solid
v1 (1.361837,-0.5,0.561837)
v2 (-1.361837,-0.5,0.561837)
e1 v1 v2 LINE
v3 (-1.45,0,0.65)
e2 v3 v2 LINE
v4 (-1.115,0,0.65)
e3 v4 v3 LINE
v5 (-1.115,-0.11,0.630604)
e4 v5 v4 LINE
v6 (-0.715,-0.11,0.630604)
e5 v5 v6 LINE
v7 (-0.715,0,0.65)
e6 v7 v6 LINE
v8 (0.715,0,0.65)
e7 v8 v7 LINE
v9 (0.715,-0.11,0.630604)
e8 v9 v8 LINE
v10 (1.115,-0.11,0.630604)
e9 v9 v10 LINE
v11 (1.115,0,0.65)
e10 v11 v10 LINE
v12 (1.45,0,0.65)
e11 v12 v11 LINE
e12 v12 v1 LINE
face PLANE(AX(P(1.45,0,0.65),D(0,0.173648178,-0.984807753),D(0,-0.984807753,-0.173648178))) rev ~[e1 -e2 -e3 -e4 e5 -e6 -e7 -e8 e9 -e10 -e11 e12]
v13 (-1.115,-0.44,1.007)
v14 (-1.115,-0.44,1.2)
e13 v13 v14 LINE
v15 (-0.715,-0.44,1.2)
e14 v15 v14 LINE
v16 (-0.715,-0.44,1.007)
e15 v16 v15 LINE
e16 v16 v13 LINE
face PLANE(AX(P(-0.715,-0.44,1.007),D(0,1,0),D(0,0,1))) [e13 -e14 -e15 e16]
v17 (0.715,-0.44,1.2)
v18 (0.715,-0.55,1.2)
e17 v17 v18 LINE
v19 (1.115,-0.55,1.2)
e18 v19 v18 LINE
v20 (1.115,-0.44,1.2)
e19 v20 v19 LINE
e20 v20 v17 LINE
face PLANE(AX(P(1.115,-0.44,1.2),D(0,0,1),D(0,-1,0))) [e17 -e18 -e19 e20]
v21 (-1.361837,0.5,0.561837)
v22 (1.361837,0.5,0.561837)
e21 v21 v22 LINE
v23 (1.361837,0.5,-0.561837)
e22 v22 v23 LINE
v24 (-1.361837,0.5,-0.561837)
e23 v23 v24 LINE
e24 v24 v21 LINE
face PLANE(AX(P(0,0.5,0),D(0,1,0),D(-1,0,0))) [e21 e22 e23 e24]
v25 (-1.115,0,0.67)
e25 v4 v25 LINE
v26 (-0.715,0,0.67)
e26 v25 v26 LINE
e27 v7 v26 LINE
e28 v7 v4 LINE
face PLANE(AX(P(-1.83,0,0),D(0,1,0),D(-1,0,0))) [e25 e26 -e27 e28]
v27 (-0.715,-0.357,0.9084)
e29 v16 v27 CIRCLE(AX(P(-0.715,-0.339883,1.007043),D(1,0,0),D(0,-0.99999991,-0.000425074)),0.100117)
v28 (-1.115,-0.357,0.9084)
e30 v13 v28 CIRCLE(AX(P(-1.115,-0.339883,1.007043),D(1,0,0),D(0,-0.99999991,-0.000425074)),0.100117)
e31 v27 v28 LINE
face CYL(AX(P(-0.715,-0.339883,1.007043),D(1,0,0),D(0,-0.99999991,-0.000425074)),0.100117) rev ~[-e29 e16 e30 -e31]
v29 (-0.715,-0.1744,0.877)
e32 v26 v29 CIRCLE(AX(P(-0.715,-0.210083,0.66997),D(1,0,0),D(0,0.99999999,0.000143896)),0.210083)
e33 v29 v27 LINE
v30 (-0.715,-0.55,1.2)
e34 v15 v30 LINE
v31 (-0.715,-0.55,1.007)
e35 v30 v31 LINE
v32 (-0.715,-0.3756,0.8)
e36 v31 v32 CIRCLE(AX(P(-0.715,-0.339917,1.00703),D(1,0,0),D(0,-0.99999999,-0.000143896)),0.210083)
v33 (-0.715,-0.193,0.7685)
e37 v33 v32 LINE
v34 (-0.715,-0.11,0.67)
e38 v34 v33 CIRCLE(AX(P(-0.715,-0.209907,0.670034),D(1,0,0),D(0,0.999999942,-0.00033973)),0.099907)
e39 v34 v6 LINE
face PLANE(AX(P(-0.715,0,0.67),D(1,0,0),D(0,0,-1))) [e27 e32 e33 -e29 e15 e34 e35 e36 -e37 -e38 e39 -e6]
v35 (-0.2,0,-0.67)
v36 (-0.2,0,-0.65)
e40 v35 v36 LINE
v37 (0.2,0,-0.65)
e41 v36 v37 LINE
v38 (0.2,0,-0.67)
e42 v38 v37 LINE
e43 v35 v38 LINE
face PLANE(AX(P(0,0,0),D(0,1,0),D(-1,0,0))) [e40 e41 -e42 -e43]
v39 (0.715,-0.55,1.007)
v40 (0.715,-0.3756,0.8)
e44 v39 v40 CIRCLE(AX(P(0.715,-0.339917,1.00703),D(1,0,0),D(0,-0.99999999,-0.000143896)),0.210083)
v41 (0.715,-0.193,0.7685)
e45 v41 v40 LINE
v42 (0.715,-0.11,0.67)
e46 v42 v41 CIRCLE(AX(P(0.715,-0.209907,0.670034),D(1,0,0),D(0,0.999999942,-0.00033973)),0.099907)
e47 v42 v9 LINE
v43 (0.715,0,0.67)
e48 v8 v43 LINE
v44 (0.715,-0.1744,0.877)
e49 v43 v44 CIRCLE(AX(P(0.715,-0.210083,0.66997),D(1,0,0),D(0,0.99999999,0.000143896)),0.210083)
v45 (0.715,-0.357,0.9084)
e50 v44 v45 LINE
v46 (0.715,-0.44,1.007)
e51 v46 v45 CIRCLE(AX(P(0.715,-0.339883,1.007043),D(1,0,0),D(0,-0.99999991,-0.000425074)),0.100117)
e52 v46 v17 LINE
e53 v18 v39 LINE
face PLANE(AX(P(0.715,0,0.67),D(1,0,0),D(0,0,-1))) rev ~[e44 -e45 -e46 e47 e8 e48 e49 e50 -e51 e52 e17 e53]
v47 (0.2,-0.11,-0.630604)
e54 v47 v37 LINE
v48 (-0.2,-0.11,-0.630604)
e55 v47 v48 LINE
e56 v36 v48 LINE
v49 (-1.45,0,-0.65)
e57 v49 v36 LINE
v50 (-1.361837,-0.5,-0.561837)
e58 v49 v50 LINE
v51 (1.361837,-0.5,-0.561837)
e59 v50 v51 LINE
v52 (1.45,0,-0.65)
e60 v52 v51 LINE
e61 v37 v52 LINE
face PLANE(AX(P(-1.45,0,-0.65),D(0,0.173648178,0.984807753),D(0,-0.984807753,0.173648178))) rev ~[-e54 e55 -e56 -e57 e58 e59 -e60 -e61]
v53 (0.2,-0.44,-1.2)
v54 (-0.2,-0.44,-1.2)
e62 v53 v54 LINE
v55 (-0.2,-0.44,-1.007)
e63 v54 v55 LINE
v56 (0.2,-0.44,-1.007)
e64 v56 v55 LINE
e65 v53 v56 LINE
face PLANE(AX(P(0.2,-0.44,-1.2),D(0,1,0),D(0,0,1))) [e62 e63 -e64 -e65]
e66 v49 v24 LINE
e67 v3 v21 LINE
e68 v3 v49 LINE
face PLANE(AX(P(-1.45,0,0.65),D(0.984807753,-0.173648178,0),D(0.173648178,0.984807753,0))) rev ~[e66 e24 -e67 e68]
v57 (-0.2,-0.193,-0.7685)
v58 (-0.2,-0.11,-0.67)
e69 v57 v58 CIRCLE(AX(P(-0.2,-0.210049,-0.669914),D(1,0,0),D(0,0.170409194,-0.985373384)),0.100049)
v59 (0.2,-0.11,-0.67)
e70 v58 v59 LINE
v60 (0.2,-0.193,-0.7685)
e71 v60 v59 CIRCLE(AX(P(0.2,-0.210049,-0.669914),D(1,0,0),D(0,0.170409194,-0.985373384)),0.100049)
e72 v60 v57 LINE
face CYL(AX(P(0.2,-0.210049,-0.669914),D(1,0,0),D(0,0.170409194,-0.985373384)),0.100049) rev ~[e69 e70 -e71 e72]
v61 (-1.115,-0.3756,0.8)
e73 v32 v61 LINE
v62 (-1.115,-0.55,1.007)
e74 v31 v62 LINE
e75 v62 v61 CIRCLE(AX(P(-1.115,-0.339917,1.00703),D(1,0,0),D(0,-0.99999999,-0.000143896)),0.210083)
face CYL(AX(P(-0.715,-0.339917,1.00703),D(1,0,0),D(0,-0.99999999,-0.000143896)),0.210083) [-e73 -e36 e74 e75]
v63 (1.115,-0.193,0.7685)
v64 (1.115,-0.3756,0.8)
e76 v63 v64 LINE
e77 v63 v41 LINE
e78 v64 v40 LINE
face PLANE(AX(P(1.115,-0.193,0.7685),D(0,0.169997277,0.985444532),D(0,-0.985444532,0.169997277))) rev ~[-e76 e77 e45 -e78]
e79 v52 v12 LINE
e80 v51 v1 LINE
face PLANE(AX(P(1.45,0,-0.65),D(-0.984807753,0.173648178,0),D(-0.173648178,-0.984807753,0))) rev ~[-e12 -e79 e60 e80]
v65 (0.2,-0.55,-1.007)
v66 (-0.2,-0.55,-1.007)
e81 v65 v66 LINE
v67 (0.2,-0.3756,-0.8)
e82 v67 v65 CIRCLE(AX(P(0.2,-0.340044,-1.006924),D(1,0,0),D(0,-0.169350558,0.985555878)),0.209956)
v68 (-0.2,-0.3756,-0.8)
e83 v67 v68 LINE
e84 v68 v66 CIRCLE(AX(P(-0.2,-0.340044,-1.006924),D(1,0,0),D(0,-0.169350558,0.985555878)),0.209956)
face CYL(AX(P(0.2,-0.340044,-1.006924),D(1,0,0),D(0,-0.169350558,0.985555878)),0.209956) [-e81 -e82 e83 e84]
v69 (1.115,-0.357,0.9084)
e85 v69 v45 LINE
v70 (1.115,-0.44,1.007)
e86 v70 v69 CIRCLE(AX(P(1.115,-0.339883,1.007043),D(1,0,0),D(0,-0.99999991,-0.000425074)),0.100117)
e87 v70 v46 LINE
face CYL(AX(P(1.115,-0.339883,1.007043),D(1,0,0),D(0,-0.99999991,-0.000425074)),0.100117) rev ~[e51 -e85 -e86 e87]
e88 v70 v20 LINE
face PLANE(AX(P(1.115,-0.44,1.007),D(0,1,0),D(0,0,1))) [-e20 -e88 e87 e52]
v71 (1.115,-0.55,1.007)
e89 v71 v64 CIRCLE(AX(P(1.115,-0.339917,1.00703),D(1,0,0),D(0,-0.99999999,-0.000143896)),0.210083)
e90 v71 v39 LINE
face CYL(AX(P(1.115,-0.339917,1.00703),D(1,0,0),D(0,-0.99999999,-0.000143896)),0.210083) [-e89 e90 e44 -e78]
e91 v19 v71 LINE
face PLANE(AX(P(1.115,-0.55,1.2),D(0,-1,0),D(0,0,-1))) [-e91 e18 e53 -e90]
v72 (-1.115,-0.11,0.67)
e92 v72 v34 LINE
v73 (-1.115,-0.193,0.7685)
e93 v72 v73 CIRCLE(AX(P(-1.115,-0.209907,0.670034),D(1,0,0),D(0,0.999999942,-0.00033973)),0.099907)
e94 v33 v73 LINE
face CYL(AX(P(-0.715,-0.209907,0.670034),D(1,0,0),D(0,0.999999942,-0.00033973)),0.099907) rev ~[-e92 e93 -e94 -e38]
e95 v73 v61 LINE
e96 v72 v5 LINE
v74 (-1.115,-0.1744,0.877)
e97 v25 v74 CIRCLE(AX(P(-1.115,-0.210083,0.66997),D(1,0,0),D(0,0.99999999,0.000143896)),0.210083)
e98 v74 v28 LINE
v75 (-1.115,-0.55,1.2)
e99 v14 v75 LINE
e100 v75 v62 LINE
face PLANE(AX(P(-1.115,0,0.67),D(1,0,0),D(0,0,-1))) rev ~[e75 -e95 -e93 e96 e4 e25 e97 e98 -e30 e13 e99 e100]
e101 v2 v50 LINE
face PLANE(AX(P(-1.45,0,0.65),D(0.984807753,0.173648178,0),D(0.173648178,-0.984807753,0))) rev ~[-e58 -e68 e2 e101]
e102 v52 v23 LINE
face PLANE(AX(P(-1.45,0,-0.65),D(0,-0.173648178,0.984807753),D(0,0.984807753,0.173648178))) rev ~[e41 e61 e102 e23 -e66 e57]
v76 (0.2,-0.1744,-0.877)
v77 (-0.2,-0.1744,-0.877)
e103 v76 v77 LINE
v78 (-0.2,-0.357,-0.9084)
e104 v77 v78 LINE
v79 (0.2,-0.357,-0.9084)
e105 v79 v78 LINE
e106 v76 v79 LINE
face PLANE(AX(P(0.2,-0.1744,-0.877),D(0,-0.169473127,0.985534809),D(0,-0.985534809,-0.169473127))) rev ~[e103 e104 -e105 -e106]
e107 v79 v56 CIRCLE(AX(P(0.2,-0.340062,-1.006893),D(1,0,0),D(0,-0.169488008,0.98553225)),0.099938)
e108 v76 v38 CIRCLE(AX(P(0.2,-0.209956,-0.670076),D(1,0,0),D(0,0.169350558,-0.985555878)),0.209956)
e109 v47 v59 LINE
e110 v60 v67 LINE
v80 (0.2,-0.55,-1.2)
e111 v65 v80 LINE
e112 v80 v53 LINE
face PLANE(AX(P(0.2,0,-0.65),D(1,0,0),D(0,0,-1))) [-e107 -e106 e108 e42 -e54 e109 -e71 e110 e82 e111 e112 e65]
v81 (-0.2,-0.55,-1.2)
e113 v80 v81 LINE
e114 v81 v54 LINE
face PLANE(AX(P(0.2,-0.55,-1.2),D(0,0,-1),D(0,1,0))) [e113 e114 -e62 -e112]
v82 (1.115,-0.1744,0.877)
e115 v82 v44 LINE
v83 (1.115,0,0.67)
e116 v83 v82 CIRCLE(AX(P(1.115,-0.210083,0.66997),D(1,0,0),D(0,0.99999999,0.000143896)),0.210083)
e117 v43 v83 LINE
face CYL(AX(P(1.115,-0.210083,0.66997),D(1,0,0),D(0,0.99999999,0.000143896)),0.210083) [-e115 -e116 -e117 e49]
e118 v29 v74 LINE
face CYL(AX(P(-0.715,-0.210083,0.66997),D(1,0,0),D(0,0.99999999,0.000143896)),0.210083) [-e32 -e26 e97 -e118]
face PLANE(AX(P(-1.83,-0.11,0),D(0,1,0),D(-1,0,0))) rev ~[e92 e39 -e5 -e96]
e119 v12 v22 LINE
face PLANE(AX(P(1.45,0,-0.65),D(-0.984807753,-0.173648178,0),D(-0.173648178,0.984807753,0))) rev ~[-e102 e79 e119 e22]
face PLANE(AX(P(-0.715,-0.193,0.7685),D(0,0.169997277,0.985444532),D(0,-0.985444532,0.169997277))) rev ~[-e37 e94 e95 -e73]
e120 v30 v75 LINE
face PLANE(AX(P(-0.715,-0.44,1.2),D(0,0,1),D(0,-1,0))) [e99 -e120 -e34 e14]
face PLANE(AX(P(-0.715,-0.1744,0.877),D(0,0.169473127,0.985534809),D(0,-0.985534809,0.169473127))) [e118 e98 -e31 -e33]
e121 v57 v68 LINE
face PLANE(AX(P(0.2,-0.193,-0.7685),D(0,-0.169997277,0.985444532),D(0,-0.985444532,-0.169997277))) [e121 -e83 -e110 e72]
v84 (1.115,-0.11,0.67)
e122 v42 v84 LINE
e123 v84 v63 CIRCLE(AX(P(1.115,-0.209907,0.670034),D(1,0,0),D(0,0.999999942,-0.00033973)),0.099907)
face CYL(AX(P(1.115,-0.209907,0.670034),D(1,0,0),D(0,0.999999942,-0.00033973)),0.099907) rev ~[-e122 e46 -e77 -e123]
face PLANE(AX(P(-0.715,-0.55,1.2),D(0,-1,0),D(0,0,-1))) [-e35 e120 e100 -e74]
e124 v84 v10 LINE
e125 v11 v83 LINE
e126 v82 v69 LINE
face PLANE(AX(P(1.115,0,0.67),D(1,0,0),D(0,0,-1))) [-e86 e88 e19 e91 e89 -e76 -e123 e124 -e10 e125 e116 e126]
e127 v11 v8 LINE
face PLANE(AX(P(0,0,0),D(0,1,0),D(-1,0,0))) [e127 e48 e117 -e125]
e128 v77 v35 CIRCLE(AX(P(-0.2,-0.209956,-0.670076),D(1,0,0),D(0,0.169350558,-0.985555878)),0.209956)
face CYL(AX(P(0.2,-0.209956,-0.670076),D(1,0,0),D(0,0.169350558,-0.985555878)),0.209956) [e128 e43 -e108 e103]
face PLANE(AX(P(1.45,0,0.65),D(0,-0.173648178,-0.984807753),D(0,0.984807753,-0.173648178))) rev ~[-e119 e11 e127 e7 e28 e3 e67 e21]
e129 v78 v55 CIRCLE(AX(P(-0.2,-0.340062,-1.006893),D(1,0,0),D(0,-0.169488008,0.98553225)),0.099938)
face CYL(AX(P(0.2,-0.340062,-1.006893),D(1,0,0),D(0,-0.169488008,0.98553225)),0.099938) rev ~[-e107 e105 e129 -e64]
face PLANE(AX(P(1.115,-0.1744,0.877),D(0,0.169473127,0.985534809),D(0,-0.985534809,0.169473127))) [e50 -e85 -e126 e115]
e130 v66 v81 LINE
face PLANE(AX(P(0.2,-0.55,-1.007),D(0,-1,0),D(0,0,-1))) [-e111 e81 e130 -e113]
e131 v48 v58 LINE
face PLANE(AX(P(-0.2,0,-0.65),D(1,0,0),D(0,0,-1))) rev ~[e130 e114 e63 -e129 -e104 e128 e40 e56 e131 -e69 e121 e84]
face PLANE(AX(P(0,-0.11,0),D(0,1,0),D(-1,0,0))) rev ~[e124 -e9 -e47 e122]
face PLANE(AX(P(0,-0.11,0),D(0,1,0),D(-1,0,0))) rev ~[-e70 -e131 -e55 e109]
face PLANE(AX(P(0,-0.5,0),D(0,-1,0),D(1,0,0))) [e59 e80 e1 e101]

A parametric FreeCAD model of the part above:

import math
import FreeCAD as App
import Part
import Sketcher

V = App.Vector


def add_polygon(sketch, points):
    """Adds a closed chain of lines whose ends are joined by coincident constraints."""
    first, n = sketch.GeometryCount, len(points)
    for a, b in zip(points, points[1:] + points[:1]):
        sketch.addGeometry(Part.LineSegment(App.Vector(*a, 0), App.Vector(*b, 0)), False)
    for i in range(n):
        sketch.addConstraint(Sketcher.Constraint("Coincident", first + i, 2, first + (i + 1) % n, 1))

doc = App.newDocument("Part")
params = doc.addObject("Spreadsheet::Sheet", "Params")
for row, (alias, value) in enumerate([
    ("sketch1_width", "2.9 mm"),
    ("sketch1_height", "1.3 mm"),
    ("pad1_length", "0.5 mm"),
    ("pad1_taper", "-10 deg"),
    ("sketch2_width", "2.9 mm"),
    ("sketch2_height", "1.3 mm"),
    ("pad2_length", "0.5 mm"),
    ("pad2_taper", "-10 deg"),
    ("sketch3_width", "0.4 mm"),
    ("sketch3_height", "0.67 mm"),
    ("pad3_length", "0.11 mm"),
    ("sketch4_radius", "0.1 mm"),
    ("sketch4_radius2", "0.21 mm"),
    ("pad4_length", "0.4 mm"),
    ("sketch5_width", "0.4 mm"),
    ("sketch5_height", "0.67 mm"),
    ("pad5_length", "0.11 mm"),
    ("sketch6_radius", "0.1 mm"),
    ("sketch6_radius2", "0.21 mm"),
    ("pad6_length", "0.4 mm"),
    ("linearpattern_pitch", "1.83 mm"),
], start=1):
    params.set(f"A{row}", alias)
    params.set(f"B{row}", "=" + value)
    params.setAlias(f"B{row}", alias)

body = doc.addObject("PartDesign::Body", "Body")

# Sketch on XZ plane
sketch1 = body.newObject("Sketcher::SketchObject", "Sketch")
sketch1.AttachmentSupport = (doc.getObject("XZ_Plane"), [""])
sketch1.MapMode = "FlatFace"
add_polygon(sketch1, [(-1.45, 0.65), (1.45, 0.65), (1.45, -0.65), (-1.45, -0.65)])  # lines 0-3
sketch1.addConstraint([
    Sketcher.Constraint("Horizontal", 0),
    Sketcher.Constraint("Vertical", 1),
    Sketcher.Constraint("Horizontal", 2),
    Sketcher.Constraint("Vertical", 3),
    Sketcher.Constraint("Symmetric", 0, 2, 2, 2, -1, 1),
    Sketcher.Constraint("DistanceX", 0, 1, 0, 2, 2.9),
    Sketcher.Constraint("DistanceY", 1, 2, 1, 1, 1.3),
])
sketch1.setExpression("Constraints[9]", "Params.sketch1_width")
sketch1.setExpression("Constraints[10]", "Params.sketch1_height")
pad1 = body.newObject("PartDesign::Pad", "Pad")
pad1.Profile = sketch1
pad1.setExpression("Length", "Params.pad1_length")
pad1.Reversed = True
pad1.setExpression("TaperAngle", "Params.pad1_taper")

# Sketch on XZ plane
sketch2 = body.newObject("Sketcher::SketchObject", "Sketch001")
sketch2.AttachmentSupport = (doc.getObject("XZ_Plane"), [""])
sketch2.MapMode = "FlatFace"
add_polygon(sketch2, [(1.45, -0.65), (1.45, 0.65), (-1.45, 0.65), (-1.45, -0.65)])  # lines 0-3
sketch2.addConstraint([
    Sketcher.Constraint("Vertical", 0),
    Sketcher.Constraint("Horizontal", 1),
    Sketcher.Constraint("Vertical", 2),
    Sketcher.Constraint("Horizontal", 3),
    Sketcher.Constraint("Symmetric", 0, 2, 2, 2, -1, 1),
    Sketcher.Constraint("DistanceX", 1, 2, 1, 1, 2.9),
    Sketcher.Constraint("DistanceY", 0, 1, 0, 2, 1.3),
])
sketch2.setExpression("Constraints[9]", "Params.sketch2_width")
sketch2.setExpression("Constraints[10]", "Params.sketch2_height")
pad2 = body.newObject("PartDesign::Pad", "Pad001")
pad2.Profile = sketch2
pad2.setExpression("Length", "Params.pad2_length")
pad2.setExpression("TaperAngle", "Params.pad2_taper")

# Sketch on XZ plane
sketch3 = body.newObject("Sketcher::SketchObject", "Sketch002")
sketch3.AttachmentSupport = (doc.getObject("XZ_Plane"), [""])
sketch3.MapMode = "FlatFace"
add_polygon(sketch3, [(1.115, 0.67), (1.115, 0), (0.715, 0), (0.715, 0.67)])  # lines 0-3
sketch3.addConstraint([
    Sketcher.Constraint("Vertical", 0),
    Sketcher.Constraint("Horizontal", 1),
    Sketcher.Constraint("Vertical", 2),
    Sketcher.Constraint("Horizontal", 3),
    Sketcher.Constraint("PointOnObject", 0, 2, -1),
    Sketcher.Constraint("DistanceX", 1, 2, 1, 1, 0.4),
    Sketcher.Constraint("DistanceY", 0, 2, 0, 1, 0.67),
    Sketcher.Constraint("DistanceX", -1, 1, 0, 2, 1.115),
])
sketch3.setExpression("Constraints[9]", "Params.sketch3_width")
sketch3.setExpression("Constraints[10]", "Params.sketch3_height")
pad3 = body.newObject("PartDesign::Pad", "Pad002")
pad3.Profile = sketch3
pad3.setExpression("Length", "Params.pad3_length")

# Sketch on YZ plane
sketch4 = body.newObject("Sketcher::SketchObject", "Sketch003")
sketch4.AttachmentSupport = (doc.getObject("YZ_Plane"), [""])
sketch4.MapMode = "FlatFace"
sketch4.AttachmentOffset = App.Placement(V(0, 0, 1.115), App.Rotation())
sketch4.addGeometry([
    Part.LineSegment(V(-0.11, 0.67, 0), V(0, 0.67, 0)),  # 0
    Part.ArcOfCircle(Part.Circle(V(-0.21, 0.67, 0), V(0, 0, 1), 0.21), math.radians(0), math.radians(80.241694)),  # 1
    Part.LineSegment(V(-0.1744, 0.877, 0), V(-0.357, 0.9084, 0)),  # 2
    Part.ArcOfCircle(Part.Circle(V(-0.34, 1.007, 0), V(0, 0, 1), 0.1), math.radians(180), math.radians(260.217593)),  # 3
    Part.LineSegment(V(-0.44, 1.007, 0), V(-0.44, 1.2, 0)),  # 4
    Part.LineSegment(V(-0.44, 1.2, 0), V(-0.55, 1.2, 0)),  # 5
    Part.LineSegment(V(-0.55, 1.2, 0), V(-0.55, 1.007, 0)),  # 6
    Part.ArcOfCircle(Part.Circle(V(-0.34, 1.007, 0), V(0, 0, 1), 0.21), math.radians(180), math.radians(260.241694)),  # 7
    Part.LineSegment(V(-0.3756, 0.8, 0), V(-0.193, 0.7685, 0)),  # 8
    Part.ArcOfCircle(Part.Circle(V(-0.21, 0.67, 0), V(0, 0, 1), 0.1), math.radians(0), math.radians(80.207854)),  # 9
], False)
sketch4.addConstraint([
    Sketcher.Constraint("Coincident", 0, 2, 1, 1),
    Sketcher.Constraint("Tangent", 1, 2, 2, 1),
    Sketcher.Constraint("Tangent", 2, 2, 3, 2),
    Sketcher.Constraint("Tangent", 3, 1, 4, 1),
    Sketcher.Constraint("Coincident", 4, 2, 5, 1),
    Sketcher.Constraint("Coincident", 5, 2, 6, 1),
    Sketcher.Constraint("Tangent", 6, 2, 7, 1),
    Sketcher.Constraint("Coincident", 7, 2, 8, 1),
    Sketcher.Constraint("Tangent", 8, 2, 9, 2),
    Sketcher.Constraint("Coincident", 9, 1, 0, 1),
    Sketcher.Constraint("Horizontal", 0),
    Sketcher.Constraint("Vertical", 4),
    Sketcher.Constraint("Horizontal", 5),
    Sketcher.Constraint("Vertical", 6),
    Sketcher.Constraint("Coincident", 7, 3, 3, 3),
    Sketcher.Constraint("Coincident", 9, 3, 1, 3),
    Sketcher.Constraint("Equal", 1, 7),
    Sketcher.Constraint("Equal", 3, 9),
    Sketcher.Constraint("PointOnObject", 0, 2, -2),
    Sketcher.Constraint("Horizontal", 9, 3, 0, 2),
    Sketcher.Constraint("Equal", 2, 8),
    Sketcher.Constraint("Radius", 3, 0.1),
    Sketcher.Constraint("DistanceY", -1, 1, 4, 2, 1.2),
    Sketcher.Constraint("Radius", 1, 0.21),
    Sketcher.Constraint("DistanceY", -1, 1, 7, 2, 0.8),
    Sketcher.Constraint("DistanceY", 4, 1, 4, 2, 0.193),
    Sketcher.Constraint("DistanceY", -1, 1, 1, 3, 0.67),
])
sketch4.setExpression("Constraints[21]", "Params.sketch4_radius")
sketch4.setExpression("Constraints[23]", "Params.sketch4_radius2")
pad4 = body.newObject("PartDesign::Pad", "Pad003")
pad4.Profile = sketch4
pad4.setExpression("Length", "Params.pad4_length")
pad4.Reversed = True

# Sketch on XZ plane
sketch5 = body.newObject("Sketcher::SketchObject", "Sketch004")
sketch5.AttachmentSupport = (doc.getObject("XZ_Plane"), [""])
sketch5.MapMode = "FlatFace"
add_polygon(sketch5, [(0.2, 0), (0.2, -0.67), (-0.2, -0.67), (-0.2, 0)])  # lines 0-3
sketch5.addConstraint([
    Sketcher.Constraint("Vertical", 0),
    Sketcher.Constraint("Horizontal", 1),
    Sketcher.Constraint("Vertical", 2),
    Sketcher.Constraint("Horizontal", 3),
    Sketcher.Constraint("Symmetric", 2, 2, 3, 2, -1, 1),
    Sketcher.Constraint("DistanceX", 1, 2, 1, 1, 0.4),
    Sketcher.Constraint("DistanceY", 0, 2, 0, 1, 0.67),
])
sketch5.setExpression("Constraints[9]", "Params.sketch5_width")
sketch5.setExpression("Constraints[10]", "Params.sketch5_height")
pad5 = body.newObject("PartDesign::Pad", "Pad004")
pad5.Profile = sketch5
pad5.setExpression("Length", "Params.pad5_length")

# Sketch on YZ plane
sketch6 = body.newObject("Sketcher::SketchObject", "Sketch005")
sketch6.AttachmentSupport = (doc.getObject("YZ_Plane"), [""])
sketch6.MapMode = "FlatFace"
sketch6.AttachmentOffset = App.Placement(V(0, 0, 0.2), App.Rotation())
sketch6.addGeometry([
    Part.LineSegment(V(0, -0.67, 0), V(-0.11, -0.67, 0)),  # 0
    Part.ArcOfCircle(Part.Circle(V(-0.21, -0.67, 0), V(0, 0, 1), 0.099956), math.radians(-80.207854), math.radians(0)),  # 1
    Part.LineSegment(V(-0.193, -0.7685, 0), V(-0.3756, -0.8, 0)),  # 2
    Part.ArcOfCircle(Part.Circle(V(-0.34, -1.007, 0), V(0, 0, 1), 0.210039), math.radians(99.758306), math.radians(180)),  # 3
    Part.LineSegment(V(-0.55, -1.007, 0), V(-0.55, -1.2, 0)),  # 4
    Part.LineSegment(V(-0.55, -1.2, 0), V(-0.44, -1.2, 0)),  # 5
    Part.LineSegment(V(-0.44, -1.2, 0), V(-0.44, -1.007, 0)),  # 6
    Part.ArcOfCircle(Part.Circle(V(-0.34, -1.007, 0), V(0, 0, 1), 0.100055), math.radians(99.782407), math.radians(180)),  # 7
    Part.LineSegment(V(-0.357, -0.9084, 0), V(-0.1744, -0.877, 0)),  # 8
    Part.ArcOfCircle(Part.Circle(V(-0.21, -0.67, 0), V(0, 0, 1), 0.210039), math.radians(-80.241694), math.radians(0)),  # 9
], False)
sketch6.addConstraint([
    Sketcher.Constraint("Coincident", 0, 2, 1, 2),
    Sketcher.Constraint("Tangent", 1, 1, 2, 1),
    Sketcher.Constraint("Coincident", 2, 2, 3, 1),
    Sketcher.Constraint("Tangent", 3, 2, 4, 1),
    Sketcher.Constraint("Coincident", 4, 2, 5, 1),
    Sketcher.Constraint("Coincident", 5, 2, 6, 1),
    Sketcher.Constraint("Tangent", 6, 2, 7, 2),
    Sketcher.Constraint("Tangent", 7, 1, 8, 1),
    Sketcher.Constraint("Tangent", 8, 2, 9, 1),
    Sketcher.Constraint("Coincident", 9, 2, 0, 1),
    Sketcher.Constraint("Horizontal", 0),
    Sketcher.Constraint("Vertical", 4),
    Sketcher.Constraint("Horizontal", 5),
    Sketcher.Constraint("Vertical", 6),
    Sketcher.Constraint("Coincident", 7, 3, 3, 3),
    Sketcher.Constraint("Coincident", 9, 3, 1, 3),
    Sketcher.Constraint("Equal", 1, 7),
    Sketcher.Constraint("Equal", 3, 9),
    Sketcher.Constraint("PointOnObject", 9, 2, -2),
    Sketcher.Constraint("Horizontal", 9, 3, 0, 2),
    Sketcher.Constraint("Equal", 2, 8),
    Sketcher.Constraint("Radius", 1, 0.1),
    Sketcher.Constraint("Radius", 3, 0.21),
    Sketcher.Constraint("DistanceY", 2, 2, -1, 1, 0.8),
    Sketcher.Constraint("DistanceY", 4, 2, -1, 1, 1.2),
    Sketcher.Constraint("DistanceY", 4, 2, 4, 1, 0.193),
    Sketcher.Constraint("DistanceY", 1, 3, -1, 1, 0.67),
])
sketch6.setExpression("Constraints[21]", "Params.sketch6_radius")
sketch6.setExpression("Constraints[22]", "Params.sketch6_radius2")
pad6 = body.newObject("PartDesign::Pad", "Pad005")
pad6.Profile = sketch6
pad6.setExpression("Length", "Params.pad6_length")
pad6.Reversed = True
doc.recompute()

linearpattern = body.newObject("PartDesign::LinearPattern", "LinearPattern")
linearpattern.Originals = [pad3, pad4]
linearpattern.Direction = (doc.getObject("X_Axis"), [""])
linearpattern.Mode = "offset"
linearpattern.setExpression("Offset", "Params.linearpattern_pitch")
linearpattern.Occurrences = 2
linearpattern.Reversed = True
body.Tip = linearpattern

doc.recompute()
